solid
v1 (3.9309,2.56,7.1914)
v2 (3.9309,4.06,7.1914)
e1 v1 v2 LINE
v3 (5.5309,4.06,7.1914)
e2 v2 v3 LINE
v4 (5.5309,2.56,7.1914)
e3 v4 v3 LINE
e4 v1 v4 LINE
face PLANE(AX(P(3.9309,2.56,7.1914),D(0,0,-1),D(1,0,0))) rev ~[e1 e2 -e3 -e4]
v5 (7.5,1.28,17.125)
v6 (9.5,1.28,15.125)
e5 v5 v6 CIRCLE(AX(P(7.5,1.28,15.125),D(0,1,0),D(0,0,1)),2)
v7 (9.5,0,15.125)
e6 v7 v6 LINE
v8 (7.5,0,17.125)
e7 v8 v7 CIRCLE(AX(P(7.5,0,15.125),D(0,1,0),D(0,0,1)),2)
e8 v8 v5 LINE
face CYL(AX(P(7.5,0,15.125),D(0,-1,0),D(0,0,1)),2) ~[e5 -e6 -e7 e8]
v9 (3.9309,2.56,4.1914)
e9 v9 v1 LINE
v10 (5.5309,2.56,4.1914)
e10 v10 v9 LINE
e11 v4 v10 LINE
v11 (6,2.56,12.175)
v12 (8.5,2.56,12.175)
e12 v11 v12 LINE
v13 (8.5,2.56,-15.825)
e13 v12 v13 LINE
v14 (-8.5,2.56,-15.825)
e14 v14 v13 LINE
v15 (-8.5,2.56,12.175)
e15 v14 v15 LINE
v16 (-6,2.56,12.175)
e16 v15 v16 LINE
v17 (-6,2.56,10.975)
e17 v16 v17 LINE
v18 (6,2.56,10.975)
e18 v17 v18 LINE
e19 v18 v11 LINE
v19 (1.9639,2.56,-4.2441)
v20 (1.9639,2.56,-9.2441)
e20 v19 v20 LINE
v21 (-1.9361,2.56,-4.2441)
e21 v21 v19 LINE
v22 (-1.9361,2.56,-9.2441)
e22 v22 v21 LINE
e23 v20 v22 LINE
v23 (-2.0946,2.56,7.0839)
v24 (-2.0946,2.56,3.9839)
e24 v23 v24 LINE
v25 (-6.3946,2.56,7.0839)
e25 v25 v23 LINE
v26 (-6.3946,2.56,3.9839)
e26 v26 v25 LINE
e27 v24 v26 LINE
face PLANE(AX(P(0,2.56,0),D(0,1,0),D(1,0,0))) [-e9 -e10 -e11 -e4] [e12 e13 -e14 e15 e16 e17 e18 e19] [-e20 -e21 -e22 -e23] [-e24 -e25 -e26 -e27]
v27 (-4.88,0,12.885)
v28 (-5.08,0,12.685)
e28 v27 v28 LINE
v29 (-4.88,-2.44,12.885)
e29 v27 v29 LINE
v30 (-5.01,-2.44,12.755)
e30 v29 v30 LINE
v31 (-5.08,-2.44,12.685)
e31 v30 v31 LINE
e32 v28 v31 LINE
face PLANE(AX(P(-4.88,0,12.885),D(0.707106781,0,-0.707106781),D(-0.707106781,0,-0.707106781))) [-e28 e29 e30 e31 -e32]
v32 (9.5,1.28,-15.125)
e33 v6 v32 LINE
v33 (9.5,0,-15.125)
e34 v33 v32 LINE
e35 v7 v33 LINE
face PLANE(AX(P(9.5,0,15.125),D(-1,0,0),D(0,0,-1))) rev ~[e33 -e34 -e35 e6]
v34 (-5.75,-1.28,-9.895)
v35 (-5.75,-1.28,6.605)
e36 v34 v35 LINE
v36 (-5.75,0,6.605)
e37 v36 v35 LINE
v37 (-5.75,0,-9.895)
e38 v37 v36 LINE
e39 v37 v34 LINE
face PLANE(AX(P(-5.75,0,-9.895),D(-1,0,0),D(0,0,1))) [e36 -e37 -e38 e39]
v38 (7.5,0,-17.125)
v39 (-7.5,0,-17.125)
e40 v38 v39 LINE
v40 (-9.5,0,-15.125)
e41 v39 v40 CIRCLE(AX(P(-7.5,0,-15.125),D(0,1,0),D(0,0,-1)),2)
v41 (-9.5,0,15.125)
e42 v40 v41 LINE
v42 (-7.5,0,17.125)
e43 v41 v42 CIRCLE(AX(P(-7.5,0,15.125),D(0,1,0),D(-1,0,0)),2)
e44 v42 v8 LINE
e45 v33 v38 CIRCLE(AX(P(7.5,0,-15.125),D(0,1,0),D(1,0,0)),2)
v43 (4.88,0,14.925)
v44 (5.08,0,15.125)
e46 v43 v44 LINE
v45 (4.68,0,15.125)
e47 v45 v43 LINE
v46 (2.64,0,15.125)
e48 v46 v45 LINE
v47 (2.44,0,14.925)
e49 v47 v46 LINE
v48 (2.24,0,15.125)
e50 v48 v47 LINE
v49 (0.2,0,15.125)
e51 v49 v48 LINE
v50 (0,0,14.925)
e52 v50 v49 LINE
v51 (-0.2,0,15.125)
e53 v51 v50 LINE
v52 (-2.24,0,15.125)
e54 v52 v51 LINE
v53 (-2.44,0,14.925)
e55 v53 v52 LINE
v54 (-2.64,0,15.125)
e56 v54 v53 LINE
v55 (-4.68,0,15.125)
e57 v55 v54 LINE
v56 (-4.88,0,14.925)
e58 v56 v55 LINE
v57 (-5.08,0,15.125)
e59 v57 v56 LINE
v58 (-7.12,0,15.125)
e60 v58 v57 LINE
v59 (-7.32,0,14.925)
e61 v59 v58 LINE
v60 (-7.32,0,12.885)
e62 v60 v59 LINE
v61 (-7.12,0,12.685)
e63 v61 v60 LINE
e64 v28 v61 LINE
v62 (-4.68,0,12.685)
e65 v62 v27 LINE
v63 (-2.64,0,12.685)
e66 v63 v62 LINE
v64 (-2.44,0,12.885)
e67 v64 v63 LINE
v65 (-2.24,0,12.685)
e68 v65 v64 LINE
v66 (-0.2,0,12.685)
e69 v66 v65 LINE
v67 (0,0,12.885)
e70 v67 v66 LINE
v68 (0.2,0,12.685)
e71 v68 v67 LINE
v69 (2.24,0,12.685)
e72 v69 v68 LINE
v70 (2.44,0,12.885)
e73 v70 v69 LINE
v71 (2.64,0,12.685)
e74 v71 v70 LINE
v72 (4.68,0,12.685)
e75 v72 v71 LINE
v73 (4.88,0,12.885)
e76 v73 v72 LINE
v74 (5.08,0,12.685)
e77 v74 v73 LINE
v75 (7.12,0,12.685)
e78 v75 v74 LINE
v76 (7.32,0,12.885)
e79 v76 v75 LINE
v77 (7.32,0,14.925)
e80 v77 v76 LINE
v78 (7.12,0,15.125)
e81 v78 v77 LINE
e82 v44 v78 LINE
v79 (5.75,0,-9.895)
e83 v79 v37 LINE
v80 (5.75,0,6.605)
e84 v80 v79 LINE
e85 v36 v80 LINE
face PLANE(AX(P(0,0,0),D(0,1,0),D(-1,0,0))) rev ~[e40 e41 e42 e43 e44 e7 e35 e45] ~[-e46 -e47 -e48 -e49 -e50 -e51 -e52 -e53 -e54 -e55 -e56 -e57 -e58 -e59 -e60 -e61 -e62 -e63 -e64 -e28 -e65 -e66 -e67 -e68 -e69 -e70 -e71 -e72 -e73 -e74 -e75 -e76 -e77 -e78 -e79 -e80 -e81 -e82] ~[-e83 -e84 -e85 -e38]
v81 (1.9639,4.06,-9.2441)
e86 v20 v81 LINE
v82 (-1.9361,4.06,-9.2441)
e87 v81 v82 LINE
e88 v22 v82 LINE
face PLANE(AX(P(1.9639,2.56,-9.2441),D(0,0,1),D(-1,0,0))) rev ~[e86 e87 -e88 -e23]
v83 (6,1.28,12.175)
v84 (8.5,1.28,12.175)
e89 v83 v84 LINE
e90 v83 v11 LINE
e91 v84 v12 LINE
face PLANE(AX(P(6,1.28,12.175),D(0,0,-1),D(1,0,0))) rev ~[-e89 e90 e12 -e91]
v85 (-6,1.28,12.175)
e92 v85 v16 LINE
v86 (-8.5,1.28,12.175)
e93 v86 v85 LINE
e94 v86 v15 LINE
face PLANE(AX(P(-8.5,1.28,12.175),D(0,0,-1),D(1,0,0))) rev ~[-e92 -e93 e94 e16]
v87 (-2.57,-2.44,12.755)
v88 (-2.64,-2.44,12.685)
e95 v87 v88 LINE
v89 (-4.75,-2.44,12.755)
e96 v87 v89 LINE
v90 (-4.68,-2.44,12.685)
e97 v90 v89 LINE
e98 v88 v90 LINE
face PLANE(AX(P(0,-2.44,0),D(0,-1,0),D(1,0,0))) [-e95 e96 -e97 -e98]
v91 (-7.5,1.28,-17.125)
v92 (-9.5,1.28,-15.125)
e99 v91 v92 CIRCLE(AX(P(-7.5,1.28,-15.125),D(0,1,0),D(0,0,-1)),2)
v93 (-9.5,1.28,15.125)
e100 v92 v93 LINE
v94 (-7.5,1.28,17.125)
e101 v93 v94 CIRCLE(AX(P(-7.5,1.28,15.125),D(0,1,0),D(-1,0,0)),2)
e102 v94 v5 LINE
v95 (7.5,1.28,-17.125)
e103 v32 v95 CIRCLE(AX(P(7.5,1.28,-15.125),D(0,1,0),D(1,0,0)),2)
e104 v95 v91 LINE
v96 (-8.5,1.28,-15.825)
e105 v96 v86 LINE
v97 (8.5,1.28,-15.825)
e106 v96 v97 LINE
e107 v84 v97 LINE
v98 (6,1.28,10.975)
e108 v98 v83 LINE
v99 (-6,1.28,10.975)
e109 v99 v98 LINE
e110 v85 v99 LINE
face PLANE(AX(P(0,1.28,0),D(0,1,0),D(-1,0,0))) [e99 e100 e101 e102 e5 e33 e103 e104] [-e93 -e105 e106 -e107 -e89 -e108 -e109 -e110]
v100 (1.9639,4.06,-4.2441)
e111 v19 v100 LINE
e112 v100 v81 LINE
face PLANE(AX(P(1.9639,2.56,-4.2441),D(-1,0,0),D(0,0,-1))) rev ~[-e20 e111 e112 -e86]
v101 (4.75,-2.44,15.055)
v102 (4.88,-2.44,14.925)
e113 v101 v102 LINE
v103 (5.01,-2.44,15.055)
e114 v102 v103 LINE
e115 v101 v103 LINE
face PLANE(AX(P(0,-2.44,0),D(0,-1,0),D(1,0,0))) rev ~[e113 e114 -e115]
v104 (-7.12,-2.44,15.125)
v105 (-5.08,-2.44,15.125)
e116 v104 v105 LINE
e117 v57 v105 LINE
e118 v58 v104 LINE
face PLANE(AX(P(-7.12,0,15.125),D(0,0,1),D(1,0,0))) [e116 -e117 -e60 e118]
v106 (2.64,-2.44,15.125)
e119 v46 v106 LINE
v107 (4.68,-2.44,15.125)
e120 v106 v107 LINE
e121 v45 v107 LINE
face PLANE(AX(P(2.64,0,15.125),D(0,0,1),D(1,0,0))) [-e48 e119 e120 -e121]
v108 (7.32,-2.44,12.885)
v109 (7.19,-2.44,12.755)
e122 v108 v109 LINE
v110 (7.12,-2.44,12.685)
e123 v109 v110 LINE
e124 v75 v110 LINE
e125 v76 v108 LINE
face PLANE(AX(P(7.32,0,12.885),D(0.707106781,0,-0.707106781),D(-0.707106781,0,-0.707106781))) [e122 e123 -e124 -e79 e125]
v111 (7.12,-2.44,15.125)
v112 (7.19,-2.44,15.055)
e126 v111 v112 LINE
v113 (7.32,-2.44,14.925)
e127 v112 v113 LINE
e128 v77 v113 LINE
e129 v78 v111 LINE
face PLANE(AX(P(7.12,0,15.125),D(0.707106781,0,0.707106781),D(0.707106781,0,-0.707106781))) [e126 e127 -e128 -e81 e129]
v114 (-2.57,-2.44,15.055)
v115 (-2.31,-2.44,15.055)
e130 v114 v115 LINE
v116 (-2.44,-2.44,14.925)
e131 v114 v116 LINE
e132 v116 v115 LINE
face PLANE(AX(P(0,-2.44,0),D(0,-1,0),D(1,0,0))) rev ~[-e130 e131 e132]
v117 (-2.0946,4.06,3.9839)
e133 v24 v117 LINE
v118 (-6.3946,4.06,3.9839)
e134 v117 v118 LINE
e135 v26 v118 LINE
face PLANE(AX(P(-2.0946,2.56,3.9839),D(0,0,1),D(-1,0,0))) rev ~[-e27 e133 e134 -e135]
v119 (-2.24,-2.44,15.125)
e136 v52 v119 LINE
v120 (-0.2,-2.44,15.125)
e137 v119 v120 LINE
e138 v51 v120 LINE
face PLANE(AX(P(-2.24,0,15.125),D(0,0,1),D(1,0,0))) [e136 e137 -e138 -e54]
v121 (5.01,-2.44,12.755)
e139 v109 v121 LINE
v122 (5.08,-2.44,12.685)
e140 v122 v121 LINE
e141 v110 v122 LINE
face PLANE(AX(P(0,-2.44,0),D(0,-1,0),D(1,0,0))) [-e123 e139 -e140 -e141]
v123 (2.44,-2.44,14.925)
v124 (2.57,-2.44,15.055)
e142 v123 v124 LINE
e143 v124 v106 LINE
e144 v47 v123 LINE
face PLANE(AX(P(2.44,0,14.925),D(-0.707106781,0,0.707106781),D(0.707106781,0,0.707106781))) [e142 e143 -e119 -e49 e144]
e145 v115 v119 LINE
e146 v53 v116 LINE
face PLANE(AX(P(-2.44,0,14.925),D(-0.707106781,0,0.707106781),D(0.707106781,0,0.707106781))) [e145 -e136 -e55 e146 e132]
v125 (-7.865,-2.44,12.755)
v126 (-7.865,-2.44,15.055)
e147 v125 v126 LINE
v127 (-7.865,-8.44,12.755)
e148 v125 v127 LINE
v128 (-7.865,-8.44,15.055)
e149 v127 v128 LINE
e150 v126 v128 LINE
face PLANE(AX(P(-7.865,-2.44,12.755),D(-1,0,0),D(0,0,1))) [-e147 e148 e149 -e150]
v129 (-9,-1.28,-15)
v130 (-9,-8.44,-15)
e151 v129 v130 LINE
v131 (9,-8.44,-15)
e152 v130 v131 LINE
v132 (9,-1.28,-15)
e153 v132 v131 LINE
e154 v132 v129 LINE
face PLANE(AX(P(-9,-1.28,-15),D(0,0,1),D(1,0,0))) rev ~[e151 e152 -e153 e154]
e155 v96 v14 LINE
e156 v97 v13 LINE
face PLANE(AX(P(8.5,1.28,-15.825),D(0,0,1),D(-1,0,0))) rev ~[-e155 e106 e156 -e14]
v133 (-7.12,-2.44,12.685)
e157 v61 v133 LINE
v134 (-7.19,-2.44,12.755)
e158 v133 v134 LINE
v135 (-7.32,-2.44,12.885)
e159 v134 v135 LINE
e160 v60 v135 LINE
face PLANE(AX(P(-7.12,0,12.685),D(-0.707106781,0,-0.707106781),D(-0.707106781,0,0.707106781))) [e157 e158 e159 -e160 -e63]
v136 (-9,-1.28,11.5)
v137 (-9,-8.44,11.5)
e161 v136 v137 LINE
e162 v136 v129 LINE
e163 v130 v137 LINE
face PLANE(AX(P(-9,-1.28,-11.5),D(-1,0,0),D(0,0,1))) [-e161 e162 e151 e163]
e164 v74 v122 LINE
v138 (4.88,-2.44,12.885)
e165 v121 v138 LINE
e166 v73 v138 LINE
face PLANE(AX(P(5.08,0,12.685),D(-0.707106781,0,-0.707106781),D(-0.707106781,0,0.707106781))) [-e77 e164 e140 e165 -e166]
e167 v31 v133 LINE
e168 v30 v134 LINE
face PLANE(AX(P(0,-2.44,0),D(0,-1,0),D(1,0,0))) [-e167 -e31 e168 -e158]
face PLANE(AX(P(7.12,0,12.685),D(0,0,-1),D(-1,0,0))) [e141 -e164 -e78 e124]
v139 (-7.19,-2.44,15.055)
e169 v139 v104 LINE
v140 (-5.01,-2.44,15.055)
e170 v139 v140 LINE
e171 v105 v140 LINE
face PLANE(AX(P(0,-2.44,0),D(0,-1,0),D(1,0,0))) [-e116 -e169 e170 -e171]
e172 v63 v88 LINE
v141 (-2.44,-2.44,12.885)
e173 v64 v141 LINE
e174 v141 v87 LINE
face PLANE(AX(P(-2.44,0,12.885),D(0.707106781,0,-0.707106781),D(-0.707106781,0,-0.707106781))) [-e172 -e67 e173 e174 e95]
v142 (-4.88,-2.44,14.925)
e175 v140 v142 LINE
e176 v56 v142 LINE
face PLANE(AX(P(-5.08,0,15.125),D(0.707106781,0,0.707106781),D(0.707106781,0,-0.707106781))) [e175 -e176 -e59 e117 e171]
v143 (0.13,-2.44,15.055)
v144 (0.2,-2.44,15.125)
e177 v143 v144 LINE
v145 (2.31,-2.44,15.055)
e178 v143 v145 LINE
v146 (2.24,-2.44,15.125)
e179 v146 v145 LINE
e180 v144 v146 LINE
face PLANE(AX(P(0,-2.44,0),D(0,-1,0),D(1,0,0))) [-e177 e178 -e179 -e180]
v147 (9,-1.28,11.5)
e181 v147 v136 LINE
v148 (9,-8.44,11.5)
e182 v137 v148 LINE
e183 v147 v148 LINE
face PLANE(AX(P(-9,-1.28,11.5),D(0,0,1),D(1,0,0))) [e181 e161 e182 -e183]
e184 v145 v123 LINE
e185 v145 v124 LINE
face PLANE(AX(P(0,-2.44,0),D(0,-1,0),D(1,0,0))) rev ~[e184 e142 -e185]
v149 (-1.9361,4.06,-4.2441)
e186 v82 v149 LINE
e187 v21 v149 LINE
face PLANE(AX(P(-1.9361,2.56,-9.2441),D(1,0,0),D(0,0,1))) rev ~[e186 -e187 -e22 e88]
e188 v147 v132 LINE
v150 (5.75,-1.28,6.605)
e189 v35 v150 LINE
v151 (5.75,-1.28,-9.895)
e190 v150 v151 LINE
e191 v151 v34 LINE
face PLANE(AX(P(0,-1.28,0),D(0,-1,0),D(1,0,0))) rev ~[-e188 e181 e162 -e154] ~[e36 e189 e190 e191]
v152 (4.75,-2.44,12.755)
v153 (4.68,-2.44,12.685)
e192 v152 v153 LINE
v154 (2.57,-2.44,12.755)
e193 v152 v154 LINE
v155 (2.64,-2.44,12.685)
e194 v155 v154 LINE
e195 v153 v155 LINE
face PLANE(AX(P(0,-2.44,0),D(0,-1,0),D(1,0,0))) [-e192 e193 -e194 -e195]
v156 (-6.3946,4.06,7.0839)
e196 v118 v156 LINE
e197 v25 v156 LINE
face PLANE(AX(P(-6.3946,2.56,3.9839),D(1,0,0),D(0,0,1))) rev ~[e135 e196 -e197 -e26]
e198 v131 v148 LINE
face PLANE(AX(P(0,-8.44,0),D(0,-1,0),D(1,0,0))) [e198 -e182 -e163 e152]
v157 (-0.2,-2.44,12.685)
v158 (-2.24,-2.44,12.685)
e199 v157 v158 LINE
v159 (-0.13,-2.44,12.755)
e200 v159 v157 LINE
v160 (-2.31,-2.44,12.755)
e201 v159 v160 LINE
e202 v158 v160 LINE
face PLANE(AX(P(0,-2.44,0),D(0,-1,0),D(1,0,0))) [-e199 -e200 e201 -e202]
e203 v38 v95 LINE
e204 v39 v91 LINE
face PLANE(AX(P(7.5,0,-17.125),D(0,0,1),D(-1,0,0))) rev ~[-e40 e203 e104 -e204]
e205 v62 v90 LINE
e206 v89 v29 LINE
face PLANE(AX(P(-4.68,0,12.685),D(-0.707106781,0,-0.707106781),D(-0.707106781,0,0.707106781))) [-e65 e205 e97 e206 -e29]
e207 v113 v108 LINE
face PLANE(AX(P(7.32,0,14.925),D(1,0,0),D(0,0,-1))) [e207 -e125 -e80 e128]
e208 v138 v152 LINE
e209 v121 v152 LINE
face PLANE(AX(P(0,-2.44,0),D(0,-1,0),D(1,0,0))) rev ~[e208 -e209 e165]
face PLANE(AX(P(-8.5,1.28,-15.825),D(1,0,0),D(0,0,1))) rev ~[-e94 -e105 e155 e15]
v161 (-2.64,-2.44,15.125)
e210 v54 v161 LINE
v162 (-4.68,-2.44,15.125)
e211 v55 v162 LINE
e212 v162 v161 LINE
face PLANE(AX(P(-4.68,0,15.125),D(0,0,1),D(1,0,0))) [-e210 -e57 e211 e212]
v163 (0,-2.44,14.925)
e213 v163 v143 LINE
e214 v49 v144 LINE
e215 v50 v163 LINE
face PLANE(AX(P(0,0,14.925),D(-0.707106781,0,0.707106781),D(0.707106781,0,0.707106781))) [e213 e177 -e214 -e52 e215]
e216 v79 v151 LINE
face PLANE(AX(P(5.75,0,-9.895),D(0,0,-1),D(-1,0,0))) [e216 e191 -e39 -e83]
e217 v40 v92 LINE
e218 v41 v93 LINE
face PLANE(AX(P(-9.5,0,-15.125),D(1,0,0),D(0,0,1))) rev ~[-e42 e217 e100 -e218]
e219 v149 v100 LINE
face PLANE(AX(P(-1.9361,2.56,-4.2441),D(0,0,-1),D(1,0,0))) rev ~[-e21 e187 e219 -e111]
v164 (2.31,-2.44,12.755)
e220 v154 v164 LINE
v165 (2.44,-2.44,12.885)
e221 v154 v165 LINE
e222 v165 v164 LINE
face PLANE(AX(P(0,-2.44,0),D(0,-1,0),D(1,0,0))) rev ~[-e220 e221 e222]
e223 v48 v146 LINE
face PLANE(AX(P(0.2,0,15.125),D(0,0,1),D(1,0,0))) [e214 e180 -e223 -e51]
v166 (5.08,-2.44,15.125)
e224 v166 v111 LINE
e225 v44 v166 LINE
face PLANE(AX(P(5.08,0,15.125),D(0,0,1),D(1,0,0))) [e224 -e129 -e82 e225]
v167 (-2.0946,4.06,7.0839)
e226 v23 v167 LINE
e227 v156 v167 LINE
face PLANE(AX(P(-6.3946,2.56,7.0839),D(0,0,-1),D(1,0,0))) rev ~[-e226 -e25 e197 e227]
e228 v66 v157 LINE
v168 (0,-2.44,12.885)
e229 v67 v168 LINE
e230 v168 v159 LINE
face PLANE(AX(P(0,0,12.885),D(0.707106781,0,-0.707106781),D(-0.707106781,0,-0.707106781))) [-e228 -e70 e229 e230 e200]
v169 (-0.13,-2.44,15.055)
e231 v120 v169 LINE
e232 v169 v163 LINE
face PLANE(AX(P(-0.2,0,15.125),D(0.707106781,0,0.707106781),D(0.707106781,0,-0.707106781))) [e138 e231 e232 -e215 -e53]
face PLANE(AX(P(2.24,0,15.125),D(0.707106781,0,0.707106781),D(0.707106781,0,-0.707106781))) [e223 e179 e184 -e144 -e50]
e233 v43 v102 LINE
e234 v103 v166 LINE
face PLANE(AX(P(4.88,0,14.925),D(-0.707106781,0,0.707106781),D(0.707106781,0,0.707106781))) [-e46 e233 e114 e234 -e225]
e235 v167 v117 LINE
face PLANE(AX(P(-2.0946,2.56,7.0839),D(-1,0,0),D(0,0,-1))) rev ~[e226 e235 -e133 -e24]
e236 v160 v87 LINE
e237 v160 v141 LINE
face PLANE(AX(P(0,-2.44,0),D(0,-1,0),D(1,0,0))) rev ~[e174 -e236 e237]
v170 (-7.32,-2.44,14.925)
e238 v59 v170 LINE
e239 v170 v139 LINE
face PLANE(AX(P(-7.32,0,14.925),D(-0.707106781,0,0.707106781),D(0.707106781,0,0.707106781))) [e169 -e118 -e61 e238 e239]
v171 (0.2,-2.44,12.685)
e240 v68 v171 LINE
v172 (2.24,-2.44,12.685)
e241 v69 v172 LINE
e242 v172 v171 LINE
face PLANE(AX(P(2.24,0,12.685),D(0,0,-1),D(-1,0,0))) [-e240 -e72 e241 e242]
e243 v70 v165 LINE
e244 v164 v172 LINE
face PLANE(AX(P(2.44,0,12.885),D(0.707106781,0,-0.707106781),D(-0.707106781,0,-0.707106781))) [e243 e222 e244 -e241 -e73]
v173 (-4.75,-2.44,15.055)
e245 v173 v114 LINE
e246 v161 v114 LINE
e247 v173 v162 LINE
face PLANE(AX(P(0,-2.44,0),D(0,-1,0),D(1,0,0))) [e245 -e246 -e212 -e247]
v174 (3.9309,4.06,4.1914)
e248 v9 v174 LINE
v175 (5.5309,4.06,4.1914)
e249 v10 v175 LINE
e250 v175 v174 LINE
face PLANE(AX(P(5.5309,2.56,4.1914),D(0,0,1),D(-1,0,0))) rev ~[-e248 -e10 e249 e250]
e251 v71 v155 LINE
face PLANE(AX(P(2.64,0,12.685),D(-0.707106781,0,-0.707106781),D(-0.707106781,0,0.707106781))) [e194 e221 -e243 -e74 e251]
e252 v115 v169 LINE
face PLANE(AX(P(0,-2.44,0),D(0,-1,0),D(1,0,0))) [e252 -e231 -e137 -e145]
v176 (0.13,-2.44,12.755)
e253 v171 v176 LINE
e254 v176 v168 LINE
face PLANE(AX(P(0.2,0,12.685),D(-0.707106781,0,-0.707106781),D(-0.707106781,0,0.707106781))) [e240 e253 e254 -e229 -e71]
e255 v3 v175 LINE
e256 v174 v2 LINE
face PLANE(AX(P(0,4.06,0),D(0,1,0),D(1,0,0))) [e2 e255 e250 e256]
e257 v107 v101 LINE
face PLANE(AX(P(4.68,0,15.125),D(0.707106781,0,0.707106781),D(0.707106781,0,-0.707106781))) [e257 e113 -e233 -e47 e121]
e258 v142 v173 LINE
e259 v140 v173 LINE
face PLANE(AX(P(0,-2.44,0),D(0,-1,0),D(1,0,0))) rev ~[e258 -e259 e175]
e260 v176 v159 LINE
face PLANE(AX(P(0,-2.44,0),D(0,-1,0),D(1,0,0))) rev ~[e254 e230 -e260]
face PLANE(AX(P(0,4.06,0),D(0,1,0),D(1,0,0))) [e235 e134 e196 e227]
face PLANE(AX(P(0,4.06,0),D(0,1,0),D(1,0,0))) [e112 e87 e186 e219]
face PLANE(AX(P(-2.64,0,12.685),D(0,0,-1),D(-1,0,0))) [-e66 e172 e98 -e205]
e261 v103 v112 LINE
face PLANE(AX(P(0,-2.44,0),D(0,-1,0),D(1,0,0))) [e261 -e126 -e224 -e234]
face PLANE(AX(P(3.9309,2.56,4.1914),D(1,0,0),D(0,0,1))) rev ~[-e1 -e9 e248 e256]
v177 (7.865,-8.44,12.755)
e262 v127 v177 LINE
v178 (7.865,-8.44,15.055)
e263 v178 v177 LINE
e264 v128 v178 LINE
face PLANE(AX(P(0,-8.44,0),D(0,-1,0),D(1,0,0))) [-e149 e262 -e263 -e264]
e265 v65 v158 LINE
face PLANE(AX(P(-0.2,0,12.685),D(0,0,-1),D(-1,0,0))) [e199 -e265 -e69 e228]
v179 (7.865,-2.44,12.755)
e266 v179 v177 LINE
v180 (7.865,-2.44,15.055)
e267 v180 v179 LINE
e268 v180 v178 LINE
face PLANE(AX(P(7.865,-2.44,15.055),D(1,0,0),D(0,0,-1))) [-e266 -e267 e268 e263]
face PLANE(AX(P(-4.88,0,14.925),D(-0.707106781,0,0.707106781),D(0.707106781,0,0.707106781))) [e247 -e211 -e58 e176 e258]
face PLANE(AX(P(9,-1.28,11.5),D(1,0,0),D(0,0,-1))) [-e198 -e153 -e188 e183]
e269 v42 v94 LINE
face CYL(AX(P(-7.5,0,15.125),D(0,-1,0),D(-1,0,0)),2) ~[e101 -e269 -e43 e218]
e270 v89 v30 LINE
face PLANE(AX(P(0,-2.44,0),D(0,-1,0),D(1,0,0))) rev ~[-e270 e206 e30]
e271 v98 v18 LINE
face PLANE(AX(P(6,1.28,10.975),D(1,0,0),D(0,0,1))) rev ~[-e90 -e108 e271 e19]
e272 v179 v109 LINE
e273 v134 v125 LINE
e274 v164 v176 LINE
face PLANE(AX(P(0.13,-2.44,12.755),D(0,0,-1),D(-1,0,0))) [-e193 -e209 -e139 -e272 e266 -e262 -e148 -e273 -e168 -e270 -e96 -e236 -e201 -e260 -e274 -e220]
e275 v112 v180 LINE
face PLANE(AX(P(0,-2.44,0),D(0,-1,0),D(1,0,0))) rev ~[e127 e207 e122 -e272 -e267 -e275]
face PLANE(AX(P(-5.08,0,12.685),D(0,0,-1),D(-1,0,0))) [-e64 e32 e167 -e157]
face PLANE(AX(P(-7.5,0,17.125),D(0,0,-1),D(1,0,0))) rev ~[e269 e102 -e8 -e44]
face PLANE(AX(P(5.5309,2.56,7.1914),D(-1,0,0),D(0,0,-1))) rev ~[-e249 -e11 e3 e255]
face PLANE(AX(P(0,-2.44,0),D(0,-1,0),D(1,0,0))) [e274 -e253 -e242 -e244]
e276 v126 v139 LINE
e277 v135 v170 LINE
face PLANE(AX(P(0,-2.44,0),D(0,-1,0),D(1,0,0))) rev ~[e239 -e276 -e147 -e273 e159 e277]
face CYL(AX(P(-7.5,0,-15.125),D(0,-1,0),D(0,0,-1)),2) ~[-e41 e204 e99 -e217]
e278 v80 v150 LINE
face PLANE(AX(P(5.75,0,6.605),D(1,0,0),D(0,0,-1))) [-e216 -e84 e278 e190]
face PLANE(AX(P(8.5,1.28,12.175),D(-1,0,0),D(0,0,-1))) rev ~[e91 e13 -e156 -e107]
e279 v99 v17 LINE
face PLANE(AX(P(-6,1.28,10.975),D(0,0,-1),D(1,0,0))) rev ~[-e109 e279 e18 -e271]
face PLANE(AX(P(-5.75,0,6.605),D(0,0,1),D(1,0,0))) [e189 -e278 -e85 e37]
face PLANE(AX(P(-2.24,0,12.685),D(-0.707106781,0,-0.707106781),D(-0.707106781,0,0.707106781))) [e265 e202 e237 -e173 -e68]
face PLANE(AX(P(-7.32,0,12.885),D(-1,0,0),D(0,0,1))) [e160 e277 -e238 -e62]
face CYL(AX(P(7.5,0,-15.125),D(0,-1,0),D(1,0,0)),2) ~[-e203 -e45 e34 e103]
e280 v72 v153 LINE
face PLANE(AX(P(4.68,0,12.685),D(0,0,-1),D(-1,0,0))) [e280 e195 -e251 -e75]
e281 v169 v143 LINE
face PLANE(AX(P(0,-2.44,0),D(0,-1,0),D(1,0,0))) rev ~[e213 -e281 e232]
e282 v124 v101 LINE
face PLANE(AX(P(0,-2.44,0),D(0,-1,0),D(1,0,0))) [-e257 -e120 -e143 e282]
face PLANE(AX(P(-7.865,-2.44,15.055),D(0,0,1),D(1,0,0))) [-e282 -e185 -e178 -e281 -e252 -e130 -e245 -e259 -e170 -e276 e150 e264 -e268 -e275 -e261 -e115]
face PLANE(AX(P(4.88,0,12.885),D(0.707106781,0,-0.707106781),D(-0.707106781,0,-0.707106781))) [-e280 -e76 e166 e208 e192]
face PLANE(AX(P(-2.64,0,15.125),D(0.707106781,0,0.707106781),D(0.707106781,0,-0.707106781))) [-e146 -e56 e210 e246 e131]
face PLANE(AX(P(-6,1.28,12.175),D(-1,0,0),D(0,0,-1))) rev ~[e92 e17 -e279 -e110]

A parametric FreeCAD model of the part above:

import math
import FreeCAD as App
import Part
import Sketcher

V = App.Vector

doc = App.newDocument("Part")
body = doc.addObject("PartDesign::Body", "Body")

sketch1 = doc.addObject("Sketcher::SketchObject", "Sketch")
body.addObject(sketch1)
sketch1.AttachmentSupport = (doc.XZ_Plane, [""])
sketch1.MapMode = "FlatFace"
sketch1.addGeometry([
    Part.ArcOfCircle(Part.Circle(V(-7.5, 15.1, 0), V(0, 0, 1), 2), math.radians(90), math.radians(180)),
    Part.LineSegment(V(-7.5, 17.1, 0), V(7.5, 17.1, 0)),
    Part.ArcOfCircle(Part.Circle(V(7.5, 15.1, 0), V(0, 0, 1), 2), math.radians(0), math.radians(90)),
    Part.LineSegment(V(9.5, 15.1, 0), V(9.5, -15.1, 0)),
    Part.ArcOfCircle(Part.Circle(V(7.5, -15.1, 0), V(0, 0, 1), 2), math.radians(-90), math.radians(0)),
    Part.LineSegment(V(7.5, -17.1, 0), V(-7.5, -17.1, 0)),
    Part.ArcOfCircle(Part.Circle(V(-7.5, -15.1, 0), V(0, 0, 1), 2), math.radians(180), math.radians(270)),
    Part.LineSegment(V(-9.5, -15.1, 0), V(-9.5, 15.1, 0)),
], False)
sketch1.addConstraint([
    Sketcher.Constraint("Tangent", 0, 1, 1, 1),
    Sketcher.Constraint("Tangent", 1, 2, 2, 2),
    Sketcher.Constraint("Tangent", 2, 1, 3, 1),
    Sketcher.Constraint("Tangent", 3, 2, 4, 2),
    Sketcher.Constraint("Tangent", 4, 1, 5, 1),
    Sketcher.Constraint("Tangent", 5, 2, 6, 2),
    Sketcher.Constraint("Tangent", 6, 1, 7, 1),
    Sketcher.Constraint("Tangent", 7, 2, 0, 2),
    Sketcher.Constraint("Horizontal", 1),
    Sketcher.Constraint("Vertical", 3),
    Sketcher.Constraint("Horizontal", 5),
    Sketcher.Constraint("Vertical", 7),
    Sketcher.Constraint("Equal", 0, 2),
    Sketcher.Constraint("Equal", 2, 4),
    Sketcher.Constraint("Equal", 4, 6),
    Sketcher.Constraint("Symmetric", 0, 3, 4, 3, -1, 1),
    Sketcher.Constraint("Radius", 0, 2.0),
    Sketcher.Constraint("DistanceX", 6, 1, 3, 2, 19.0),
    Sketcher.Constraint("DistanceY", 3, 2, 3, 1, 30.25),
])
pad1 = doc.addObject("PartDesign::Pad", "Pad")
body.addObject(pad1)
pad1.Profile = sketch1
pad1.Length = 1.28
pad1.Reversed = True

sketch2 = doc.addObject("Sketcher::SketchObject", "Sketch001")
body.addObject(sketch2)
sketch2.AttachmentSupport = (doc.XZ_Plane, [""])
sketch2.MapMode = "FlatFace"
sketch2.AttachmentOffset = App.Placement(V(0, 0, -1.28), App.Rotation())
sketch2.addGeometry([
    Part.LineSegment(V(6, 12.2, 0), V(8.5, 12.2, 0)),
    Part.LineSegment(V(8.5, 12.2, 0), V(8.5, -15.8, 0)),
    Part.LineSegment(V(8.5, -15.8, 0), V(-8.5, -15.8, 0)),
    Part.LineSegment(V(-8.5, -15.8, 0), V(-8.5, 12.2, 0)),
    Part.LineSegment(V(-8.5, 12.2, 0), V(-6, 12.2, 0)),
    Part.LineSegment(V(-6, 12.2, 0), V(-6, 11, 0)),
    Part.LineSegment(V(-6, 11, 0), V(6, 11, 0)),
    Part.LineSegment(V(6, 11, 0), V(6, 12.2, 0)),
], False)
sketch2.addConstraint([
    Sketcher.Constraint("Coincident", 0, 2, 1, 1),
    Sketcher.Constraint("Coincident", 1, 2, 2, 1),
    Sketcher.Constraint("Coincident", 2, 2, 3, 1),
    Sketcher.Constraint("Coincident", 3, 2, 4, 1),
    Sketcher.Constraint("Coincident", 4, 2, 5, 1),
    Sketcher.Constraint("Coincident", 5, 2, 6, 1),
    Sketcher.Constraint("Coincident", 6, 2, 7, 1),
    Sketcher.Constraint("Coincident", 7, 2, 0, 1),
    Sketcher.Constraint("Horizontal", 0),
    Sketcher.Constraint("Vertical", 1),
    Sketcher.Constraint("Horizontal", 2),
    Sketcher.Constraint("Vertical", 3),
    Sketcher.Constraint("Horizontal", 4),
    Sketcher.Constraint("Vertical", 5),
    Sketcher.Constraint("Horizontal", 6),
    Sketcher.Constraint("Vertical", 7),
    Sketcher.Constraint("Symmetric", 0, 2, 3, 2, -2),
    Sketcher.Constraint("Equal", 0, 4),
    Sketcher.Constraint("DistanceX", 2, 2, 2, 1, 17.0),
    Sketcher.Constraint("DistanceY", 1, 2, 1, 1, 28.0),
    Sketcher.Constraint("DistanceY", 5, 2, 5, 1, 1.2),
    Sketcher.Constraint("DistanceX", 6, 1, 6, 2, 12.0),
    Sketcher.Constraint("DistanceY", -1, 1, 0, 2, 12.175),
])
pad2 = doc.addObject("PartDesign::Pad", "Pad001")
body.addObject(pad2)
pad2.Profile = sketch2
pad2.Length = 1.28
pad2.Reversed = True

sketch3 = doc.addObject("Sketcher::SketchObject", "Sketch002")
body.addObject(sketch3)
sketch3.AttachmentSupport = (doc.XZ_Plane, [""])
sketch3.MapMode = "FlatFace"
sketch3.addGeometry([
    Part.LineSegment(V(-6, -10, 0), V(6, -10, 0)),
    Part.LineSegment(V(6, -10, 0), V(6, 7, 0)),
    Part.LineSegment(V(6, 7, 0), V(-6, 7, 0)),
    Part.LineSegment(V(-6, 7, 0), V(-6, -10, 0)),
], False)
sketch3.addConstraint([
    Sketcher.Constraint("Coincident", 0, 2, 1, 1),
    Sketcher.Constraint("Coincident", 1, 2, 2, 1),
    Sketcher.Constraint("Coincident", 2, 2, 3, 1),
    Sketcher.Constraint("Coincident", 3, 2, 0, 1),
    Sketcher.Constraint("Horizontal", 0),
    Sketcher.Constraint("Vertical", 1),
    Sketcher.Constraint("Horizontal", 2),
    Sketcher.Constraint("Vertical", 3),
    Sketcher.Constraint("DistanceX", 0, 1, 0, 2, 11.5),
    Sketcher.Constraint("DistanceY", 1, 1, 1, 2, 16.5),
    Sketcher.Constraint("DistanceX", -1, 1, 0, 2, 5.75),
    Sketcher.Constraint("DistanceY", 0, 2, -1, 1, 9.895),
])
pad3 = doc.addObject("PartDesign::Pad", "Pad002")
body.addObject(pad3)
pad3.Profile = sketch3
pad3.Length = 1.28

sketch4 = doc.addObject("Sketcher::SketchObject", "Sketch003")
body.addObject(sketch4)
sketch4.AttachmentSupport = (doc.XZ_Plane, [""])
sketch4.MapMode = "FlatFace"
sketch4.addGeometry([
    Part.LineSegment(V(2.24, 15.12, 0), V(0.2, 15.12, 0)),
    Part.LineSegment(V(0.2, 15.12, 0), V(0, 14.93, 0)),
    Part.LineSegment(V(0, 14.93, 0), V(-0.2, 15.12, 0)),
    Part.LineSegment(V(-0.2, 15.12, 0), V(-2.24, 15.12, 0)),
    Part.LineSegment(V(-2.24, 15.12, 0), V(-2.44, 14.93, 0)),
    Part.LineSegment(V(-2.44, 14.93, 0), V(-2.64, 15.12, 0)),
    Part.LineSegment(V(-2.64, 15.12, 0), V(-4.68, 15.12, 0)),
    Part.LineSegment(V(-4.68, 15.12, 0), V(-4.88, 14.93, 0)),
    Part.LineSegment(V(-4.88, 14.93, 0), V(-5.08, 15.12, 0)),
    Part.LineSegment(V(-5.08, 15.12, 0), V(-7.12, 15.12, 0)),
    Part.LineSegment(V(-7.12, 15.12, 0), V(-7.32, 14.93, 0)),
    Part.LineSegment(V(-7.32, 14.93, 0), V(-7.32, 12.88, 0)),
    Part.LineSegment(V(-7.32, 12.88, 0), V(-7.12, 12.69, 0)),
    Part.LineSegment(V(-7.12, 12.69, 0), V(-5.08, 12.69, 0)),
    Part.LineSegment(V(-5.08, 12.69, 0), V(-4.88, 12.88, 0)),
    Part.LineSegment(V(-4.88, 12.88, 0), V(-4.68, 12.69, 0)),
    Part.LineSegment(V(-4.68, 12.69, 0), V(-2.64, 12.69, 0)),
    Part.LineSegment(V(-2.64, 12.69, 0), V(-2.44, 12.88, 0)),
    Part.LineSegment(V(-2.44, 12.88, 0), V(-2.24, 12.69, 0)),
    Part.LineSegment(V(-2.24, 12.69, 0), V(-0.2, 12.69, 0)),
    Part.LineSegment(V(-0.2, 12.69, 0), V(0, 12.88, 0)),
    Part.LineSegment(V(0, 12.88, 0), V(0.2, 12.69, 0)),
    Part.LineSegment(V(0.2, 12.69, 0), V(2.24, 12.69, 0)),
    Part.LineSegment(V(2.24, 12.69, 0), V(2.44, 12.88, 0)),
    Part.LineSegment(V(2.44, 12.88, 0), V(2.64, 12.69, 0)),
    Part.LineSegment(V(2.64, 12.69, 0), V(4.68, 12.69, 0)),
    Part.LineSegment(V(4.68, 12.69, 0), V(4.88, 12.88, 0)),
    Part.LineSegment(V(4.88, 12.88, 0), V(5.08, 12.69, 0)),
    Part.LineSegment(V(5.08, 12.69, 0), V(7.12, 12.69, 0)),
    Part.LineSegment(V(7.12, 12.69, 0), V(7.32, 12.88, 0)),
    Part.LineSegment(V(7.32, 12.88, 0), V(7.32, 14.93, 0)),
    Part.LineSegment(V(7.32, 14.93, 0), V(7.12, 15.12, 0)),
    Part.LineSegment(V(7.12, 15.12, 0), V(5.08, 15.12, 0)),
    Part.LineSegment(V(5.08, 15.12, 0), V(4.88, 14.93, 0)),
    Part.LineSegment(V(4.88, 14.93, 0), V(4.68, 15.12, 0)),
    Part.LineSegment(V(4.68, 15.12, 0), V(2.64, 15.12, 0)),
    Part.LineSegment(V(2.64, 15.12, 0), V(2.44, 14.93, 0)),
    Part.LineSegment(V(2.44, 14.93, 0), V(2.24, 15.12, 0)),
], False)
sketch4.addConstraint([
    Sketcher.Constraint("Coincident", 0, 2, 1, 1),
    Sketcher.Constraint("Coincident", 1, 2, 2, 1),
    Sketcher.Constraint("Coincident", 2, 2, 3, 1),
    Sketcher.Constraint("Coincident", 3, 2, 4, 1),
    Sketcher.Constraint("Coincident", 4, 2, 5, 1),
    Sketcher.Constraint("Coincident", 5, 2, 6, 1),
    Sketcher.Constraint("Coincident", 6, 2, 7, 1),
    Sketcher.Constraint("Coincident", 7, 2, 8, 1),
    Sketcher.Constraint("Coincident", 8, 2, 9, 1),
    Sketcher.Constraint("Coincident", 9, 2, 10, 1),
    Sketcher.Constraint("Coincident", 10, 2, 11, 1),
    Sketcher.Constraint("Coincident", 11, 2, 12, 1),
    Sketcher.Constraint("Coincident", 12, 2, 13, 1),
    Sketcher.Constraint("Coincident", 13, 2, 14, 1),
    Sketcher.Constraint("Coincident", 14, 2, 15, 1),
    Sketcher.Constraint("Coincident", 15, 2, 16, 1),
    Sketcher.Constraint("Coincident", 16, 2, 17, 1),
    Sketcher.Constraint("Coincident", 17, 2, 18, 1),
    Sketcher.Constraint("Coincident", 18, 2, 19, 1),
    Sketcher.Constraint("Coincident", 19, 2, 20, 1),
    Sketcher.Constraint("Coincident", 20, 2, 21, 1),
    Sketcher.Constraint("Coincident", 21, 2, 22, 1),
    Sketcher.Constraint("Coincident", 22, 2, 23, 1),
    Sketcher.Constraint("Coincident", 23, 2, 24, 1),
    Sketcher.Constraint("Coincident", 24, 2, 25, 1),
    Sketcher.Constraint("Coincident", 25, 2, 26, 1),
    Sketcher.Constraint("Coincident", 26, 2, 27, 1),
    Sketcher.Constraint("Coincident", 27, 2, 28, 1),
    Sketcher.Constraint("Coincident", 28, 2, 29, 1),
    Sketcher.Constraint("Coincident", 29, 2, 30, 1),
    Sketcher.Constraint("Coincident", 30, 2, 31, 1),
    Sketcher.Constraint("Coincident", 31, 2, 32, 1),
    Sketcher.Constraint("Coincident", 32, 2, 33, 1),
    Sketcher.Constraint("Coincident", 33, 2, 34, 1),
    Sketcher.Constraint("Coincident", 34, 2, 35, 1),
    Sketcher.Constraint("Coincident", 35, 2, 36, 1),
    Sketcher.Constraint("Coincident", 36, 2, 37, 1),
    Sketcher.Constraint("Coincident", 37, 2, 0, 1),
    Sketcher.Constraint("Horizontal", 0),
    Sketcher.Constraint("Horizontal", 3),
    Sketcher.Constraint("Horizontal", 6),
    Sketcher.Constraint("Horizontal", 9),
    Sketcher.Constraint("Vertical", 11),
    Sketcher.Constraint("Horizontal", 13),
    Sketcher.Constraint("Horizontal", 16),
    Sketcher.Constraint("Horizontal", 19),
    Sketcher.Constraint("Horizontal", 22),
    Sketcher.Constraint("Horizontal", 25),
    Sketcher.Constraint("Horizontal", 28),
    Sketcher.Constraint("Vertical", 30),
    Sketcher.Constraint("Horizontal", 32),
    Sketcher.Constraint("Horizontal", 35),
    Sketcher.Constraint("Symmetric", 0, 2, 2, 2, -2),
    Sketcher.Constraint("Symmetric", 19, 2, 21, 2, -2),
    Sketcher.Constraint("Symmetric", 17, 2, 23, 2, -2),
    Sketcher.Constraint("Symmetric", 16, 2, 24, 2, -2),
    Sketcher.Constraint("Symmetric", 14, 2, 26, 2, -2),
    Sketcher.Constraint("Symmetric", 13, 2, 27, 2, -2),
    Sketcher.Constraint("Symmetric", 11, 2, 29, 2, -2),
    Sketcher.Constraint("Symmetric", 9, 2, 31, 2, -2),
    Sketcher.Constraint("Symmetric", 7, 2, 33, 2, -2),
    Sketcher.Constraint("Symmetric", 6, 2, 34, 2, -2),
    Sketcher.Constraint("Symmetric", 4, 2, 36, 2, -2),
    Sketcher.Constraint("PointOnObject", 1, 2, -2),
    Sketcher.Constraint("PointOnObject", 20, 2, -2),
    Sketcher.Constraint("Perpendicular", 1, 2),
    Sketcher.Constraint("Perpendicular", 2, 4),
    Sketcher.Constraint("Perpendicular", 4, 5),
    Sketcher.Constraint("Perpendicular", 5, 7),
    Sketcher.Constraint("Perpendicular", 7, 8),
    Sketcher.Constraint("Perpendicular", 8, 10),
    Sketcher.Constraint("Perpendicular", 10, 12),
    Sketcher.Constraint("Perpendicular", 12, 14),
    Sketcher.Constraint("Perpendicular", 14, 15),
    Sketcher.Constraint("Perpendicular", 15, 17),
    Sketcher.Constraint("Perpendicular", 17, 18),
    Sketcher.Constraint("Perpendicular", 18, 20),
    Sketcher.Constraint("Perpendicular", 21, 23),
    Sketcher.Constraint("Perpendicular", 24, 26),
    Sketcher.Constraint("Perpendicular", 27, 29),
    Sketcher.Constraint("Perpendicular", 29, 31),
    Sketcher.Constraint("Perpendicular", 31, 33),
    Sketcher.Constraint("Perpendicular", 34, 36),
    Sketcher.Constraint("Perpendicular", 36, 37),
    Sketcher.Constraint("Horizontal", 1, 2, 4, 2),
    Sketcher.Constraint("Horizontal", 3, 2, 5, 2),
    Sketcher.Constraint("Horizontal", 4, 2, 7, 2),
    Sketcher.Constraint("Horizontal", 6, 2, 8, 2),
    Sketcher.Constraint("Horizontal", 7, 2, 10, 2),
    Sketcher.Constraint("Horizontal", 11, 2, 14, 2),
    Sketcher.Constraint("Horizontal", 13, 2, 15, 2),
    Sketcher.Constraint("Horizontal", 14, 2, 17, 2),
    Sketcher.Constraint("Horizontal", 16, 2, 18, 2),
    Sketcher.Constraint("Horizontal", 17, 2, 20, 2),
    Sketcher.Constraint("Vertical", 9, 2, 12, 2),
    Sketcher.Constraint("Vertical", 8, 2, 13, 2),
    Sketcher.Constraint("Vertical", 5, 2, 16, 2),
    Sketcher.Constraint("Equal", 3, 6),
    Sketcher.Constraint("Equal", 6, 9),
    Sketcher.Constraint("Equal", 35, 11),
    Sketcher.Constraint("DistanceX", 0, 2, 0, 1, 2.04),
    Sketcher.Constraint("DistanceX", -1, 1, 0, 2, 0.2),
    Sketcher.Constraint("DistanceY", -1, 1, 0, 2, 15.125),
])
pad4 = doc.addObject("PartDesign::Pad", "Pad003")
body.addObject(pad4)
pad4.Profile = sketch4
pad4.Length = 2.44

sketch5 = doc.addObject("Sketcher::SketchObject", "Sketch004")
body.addObject(sketch5)
sketch5.AttachmentSupport = (doc.XZ_Plane, [""])
sketch5.MapMode = "FlatFace"
sketch5.AttachmentOffset = App.Placement(V(0, 0, 2.44), App.Rotation())
sketch5.addGeometry([
    Part.LineSegment(V(7.9, 15.1, 0), V(-7.9, 15.1, 0)),
    Part.LineSegment(V(-7.9, 15.1, 0), V(-7.9, 12.8, 0)),
    Part.LineSegment(V(-7.9, 12.8, 0), V(7.9, 12.8, 0)),
    Part.LineSegment(V(7.9, 12.8, 0), V(7.9, 15.1, 0)),
], False)
sketch5.addConstraint([
    Sketcher.Constraint("Coincident", 0, 2, 1, 1),
    Sketcher.Constraint("Coincident", 1, 2, 2, 1),
    Sketcher.Constraint("Coincident", 2, 2, 3, 1),
    Sketcher.Constraint("Coincident", 3, 2, 0, 1),
    Sketcher.Constraint("Horizontal", 0),
    Sketcher.Constraint("Vertical", 1),
    Sketcher.Constraint("Horizontal", 2),
    Sketcher.Constraint("Vertical", 3),
    Sketcher.Constraint("DistanceY", 1, 2, 1, 1, 2.3),
    Sketcher.Constraint("DistanceX", 0, 2, 0, 1, 15.73),
    Sketcher.Constraint("DistanceX", 0, 2, -1, 1, 7.865),
    Sketcher.Constraint("DistanceY", -1, 1, 0, 2, 15.055),
])
pad5 = doc.addObject("PartDesign::Pad", "Pad004")
body.addObject(pad5)
pad5.Profile = sketch5
pad5.Length = 6

sketch6 = doc.addObject("Sketcher::SketchObject", "Sketch005")
body.addObject(sketch6)
sketch6.AttachmentSupport = (doc.XZ_Plane, [""])
sketch6.MapMode = "FlatFace"
sketch6.AttachmentOffset = App.Placement(V(0, 0, -2.56), App.Rotation())
sketch6.addGeometry([
    Part.LineSegment(V(-1.9, -9.2, 0), V(-1.9, -4.2, 0)),
    Part.LineSegment(V(-1.9, -4.2, 0), V(2, -4.2, 0)),
    Part.LineSegment(V(2, -4.2, 0), V(2, -9.2, 0)),
    Part.LineSegment(V(2, -9.2, 0), V(-1.9, -9.2, 0)),
    Part.LineSegment(V(-6.4, 4, 0), V(-6.4, 7.1, 0)),
    Part.LineSegment(V(-6.4, 7.1, 0), V(-2.1, 7.1, 0)),
    Part.LineSegment(V(-2.1, 7.1, 0), V(-2.1, 4, 0)),
    Part.LineSegment(V(-2.1, 4, 0), V(-6.4, 4, 0)),
    Part.LineSegment(V(3.9, 4.2, 0), V(3.9, 7.2, 0)),
    Part.LineSegment(V(3.9, 7.2, 0), V(5.5, 7.2, 0)),
    Part.LineSegment(V(5.5, 7.2, 0), V(5.5, 4.2, 0)),
    Part.LineSegment(V(5.5, 4.2, 0), V(3.9, 4.2, 0)),
], False)
sketch6.addConstraint([
    Sketcher.Constraint("Coincident", 0, 2, 1, 1),
    Sketcher.Constraint("Coincident", 1, 2, 2, 1),
    Sketcher.Constraint("Coincident", 2, 2, 3, 1),
    Sketcher.Constraint("Coincident", 3, 2, 0, 1),
    Sketcher.Constraint("Coincident", 4, 2, 5, 1),
    Sketcher.Constraint("Coincident", 5, 2, 6, 1),
    Sketcher.Constraint("Coincident", 6, 2, 7, 1),
    Sketcher.Constraint("Coincident", 7, 2, 4, 1),
    Sketcher.Constraint("Coincident", 8, 2, 9, 1),
    Sketcher.Constraint("Coincident", 9, 2, 10, 1),
    Sketcher.Constraint("Coincident", 10, 2, 11, 1),
    Sketcher.Constraint("Coincident", 11, 2, 8, 1),
    Sketcher.Constraint("Vertical", 0),
    Sketcher.Constraint("Horizontal", 1),
    Sketcher.Constraint("Vertical", 2),
    Sketcher.Constraint("Horizontal", 3),
    Sketcher.Constraint("Vertical", 4),
    Sketcher.Constraint("Horizontal", 5),
    Sketcher.Constraint("Vertical", 6),
    Sketcher.Constraint("Horizontal", 7),
    Sketcher.Constraint("Vertical", 8),
    Sketcher.Constraint("Horizontal", 9),
    Sketcher.Constraint("Vertical", 10),
    Sketcher.Constraint("Horizontal", 11),
    Sketcher.Constraint("DistanceY", 0, 1, 0, 2, 5.0),
    Sketcher.Constraint("DistanceY", 8, 1, 8, 2, 3.0),
    Sketcher.Constraint("DistanceX", 1, 1, 1, 2, 3.9),
    Sketcher.Constraint("DistanceX", 5, 1, 5, 2, 4.3),
    Sketcher.Constraint("DistanceX", 9, 1, 9, 2, 1.6),
    Sketcher.Constraint("DistanceY", 4, 1, 4, 2, 3.1),
    Sketcher.Constraint("DistanceX", 0, 2, -1, 1, 1.936),
    Sketcher.Constraint("DistanceY", 0, 2, -1, 1, 4.244),
    Sketcher.Constraint("DistanceY", -1, 1, 4, 2, 7.084),
    Sketcher.Constraint("DistanceX", -1, 1, 8, 2, 3.931),
    Sketcher.Constraint("DistanceX", 4, 2, -1, 1, 6.3946),
    Sketcher.Constraint("DistanceY", -1, 1, 8, 2, 7.1914),
])
pad6 = doc.addObject("PartDesign::Pad", "Pad005")
body.addObject(pad6)
pad6.Profile = sketch6
pad6.Length = 1.5
pad6.Reversed = True

sketch7 = doc.addObject("Sketcher::SketchObject", "Sketch006")
body.addObject(sketch7)
sketch7.AttachmentSupport = (doc.XZ_Plane, [""])
sketch7.MapMode = "FlatFace"
sketch7.AttachmentOffset = App.Placement(V(0, 0, 1.28), App.Rotation())
sketch7.addGeometry([
    Part.LineSegment(V(-9, 12, 0), V(-9, -15, 0)),
    Part.LineSegment(V(-9, -15, 0), V(9, -15, 0)),
    Part.LineSegment(V(9, -15, 0), V(9, 12, 0)),
    Part.LineSegment(V(9, 12, 0), V(-9, 12, 0)),
], False)
sketch7.addConstraint([
    Sketcher.Constraint("Coincident", 0, 2, 1, 1),
    Sketcher.Constraint("Coincident", 1, 2, 2, 1),
    Sketcher.Constraint("Coincident", 2, 2, 3, 1),
    Sketcher.Constraint("Coincident", 3, 2, 0, 1),
    Sketcher.Constraint("Vertical", 0),
    Sketcher.Constraint("Horizontal", 1),
    Sketcher.Constraint("Vertical", 2),
    Sketcher.Constraint("Horizontal", 3),
    Sketcher.Constraint("DistanceX", 1, 1, 1, 2, 18.0),
    Sketcher.Constraint("DistanceY", 0, 2, 0, 1, 26.5),
    Sketcher.Constraint("DistanceX", 0, 2, -1, 1, 9.0),
    Sketcher.Constraint("DistanceY", 0, 2, -1, 1, 15.0),
])
pad7 = doc.addObject("PartDesign::Pad", "Pad006")
body.addObject(pad7)
pad7.Profile = sketch7
pad7.Length = 7.16

doc.recompute()
